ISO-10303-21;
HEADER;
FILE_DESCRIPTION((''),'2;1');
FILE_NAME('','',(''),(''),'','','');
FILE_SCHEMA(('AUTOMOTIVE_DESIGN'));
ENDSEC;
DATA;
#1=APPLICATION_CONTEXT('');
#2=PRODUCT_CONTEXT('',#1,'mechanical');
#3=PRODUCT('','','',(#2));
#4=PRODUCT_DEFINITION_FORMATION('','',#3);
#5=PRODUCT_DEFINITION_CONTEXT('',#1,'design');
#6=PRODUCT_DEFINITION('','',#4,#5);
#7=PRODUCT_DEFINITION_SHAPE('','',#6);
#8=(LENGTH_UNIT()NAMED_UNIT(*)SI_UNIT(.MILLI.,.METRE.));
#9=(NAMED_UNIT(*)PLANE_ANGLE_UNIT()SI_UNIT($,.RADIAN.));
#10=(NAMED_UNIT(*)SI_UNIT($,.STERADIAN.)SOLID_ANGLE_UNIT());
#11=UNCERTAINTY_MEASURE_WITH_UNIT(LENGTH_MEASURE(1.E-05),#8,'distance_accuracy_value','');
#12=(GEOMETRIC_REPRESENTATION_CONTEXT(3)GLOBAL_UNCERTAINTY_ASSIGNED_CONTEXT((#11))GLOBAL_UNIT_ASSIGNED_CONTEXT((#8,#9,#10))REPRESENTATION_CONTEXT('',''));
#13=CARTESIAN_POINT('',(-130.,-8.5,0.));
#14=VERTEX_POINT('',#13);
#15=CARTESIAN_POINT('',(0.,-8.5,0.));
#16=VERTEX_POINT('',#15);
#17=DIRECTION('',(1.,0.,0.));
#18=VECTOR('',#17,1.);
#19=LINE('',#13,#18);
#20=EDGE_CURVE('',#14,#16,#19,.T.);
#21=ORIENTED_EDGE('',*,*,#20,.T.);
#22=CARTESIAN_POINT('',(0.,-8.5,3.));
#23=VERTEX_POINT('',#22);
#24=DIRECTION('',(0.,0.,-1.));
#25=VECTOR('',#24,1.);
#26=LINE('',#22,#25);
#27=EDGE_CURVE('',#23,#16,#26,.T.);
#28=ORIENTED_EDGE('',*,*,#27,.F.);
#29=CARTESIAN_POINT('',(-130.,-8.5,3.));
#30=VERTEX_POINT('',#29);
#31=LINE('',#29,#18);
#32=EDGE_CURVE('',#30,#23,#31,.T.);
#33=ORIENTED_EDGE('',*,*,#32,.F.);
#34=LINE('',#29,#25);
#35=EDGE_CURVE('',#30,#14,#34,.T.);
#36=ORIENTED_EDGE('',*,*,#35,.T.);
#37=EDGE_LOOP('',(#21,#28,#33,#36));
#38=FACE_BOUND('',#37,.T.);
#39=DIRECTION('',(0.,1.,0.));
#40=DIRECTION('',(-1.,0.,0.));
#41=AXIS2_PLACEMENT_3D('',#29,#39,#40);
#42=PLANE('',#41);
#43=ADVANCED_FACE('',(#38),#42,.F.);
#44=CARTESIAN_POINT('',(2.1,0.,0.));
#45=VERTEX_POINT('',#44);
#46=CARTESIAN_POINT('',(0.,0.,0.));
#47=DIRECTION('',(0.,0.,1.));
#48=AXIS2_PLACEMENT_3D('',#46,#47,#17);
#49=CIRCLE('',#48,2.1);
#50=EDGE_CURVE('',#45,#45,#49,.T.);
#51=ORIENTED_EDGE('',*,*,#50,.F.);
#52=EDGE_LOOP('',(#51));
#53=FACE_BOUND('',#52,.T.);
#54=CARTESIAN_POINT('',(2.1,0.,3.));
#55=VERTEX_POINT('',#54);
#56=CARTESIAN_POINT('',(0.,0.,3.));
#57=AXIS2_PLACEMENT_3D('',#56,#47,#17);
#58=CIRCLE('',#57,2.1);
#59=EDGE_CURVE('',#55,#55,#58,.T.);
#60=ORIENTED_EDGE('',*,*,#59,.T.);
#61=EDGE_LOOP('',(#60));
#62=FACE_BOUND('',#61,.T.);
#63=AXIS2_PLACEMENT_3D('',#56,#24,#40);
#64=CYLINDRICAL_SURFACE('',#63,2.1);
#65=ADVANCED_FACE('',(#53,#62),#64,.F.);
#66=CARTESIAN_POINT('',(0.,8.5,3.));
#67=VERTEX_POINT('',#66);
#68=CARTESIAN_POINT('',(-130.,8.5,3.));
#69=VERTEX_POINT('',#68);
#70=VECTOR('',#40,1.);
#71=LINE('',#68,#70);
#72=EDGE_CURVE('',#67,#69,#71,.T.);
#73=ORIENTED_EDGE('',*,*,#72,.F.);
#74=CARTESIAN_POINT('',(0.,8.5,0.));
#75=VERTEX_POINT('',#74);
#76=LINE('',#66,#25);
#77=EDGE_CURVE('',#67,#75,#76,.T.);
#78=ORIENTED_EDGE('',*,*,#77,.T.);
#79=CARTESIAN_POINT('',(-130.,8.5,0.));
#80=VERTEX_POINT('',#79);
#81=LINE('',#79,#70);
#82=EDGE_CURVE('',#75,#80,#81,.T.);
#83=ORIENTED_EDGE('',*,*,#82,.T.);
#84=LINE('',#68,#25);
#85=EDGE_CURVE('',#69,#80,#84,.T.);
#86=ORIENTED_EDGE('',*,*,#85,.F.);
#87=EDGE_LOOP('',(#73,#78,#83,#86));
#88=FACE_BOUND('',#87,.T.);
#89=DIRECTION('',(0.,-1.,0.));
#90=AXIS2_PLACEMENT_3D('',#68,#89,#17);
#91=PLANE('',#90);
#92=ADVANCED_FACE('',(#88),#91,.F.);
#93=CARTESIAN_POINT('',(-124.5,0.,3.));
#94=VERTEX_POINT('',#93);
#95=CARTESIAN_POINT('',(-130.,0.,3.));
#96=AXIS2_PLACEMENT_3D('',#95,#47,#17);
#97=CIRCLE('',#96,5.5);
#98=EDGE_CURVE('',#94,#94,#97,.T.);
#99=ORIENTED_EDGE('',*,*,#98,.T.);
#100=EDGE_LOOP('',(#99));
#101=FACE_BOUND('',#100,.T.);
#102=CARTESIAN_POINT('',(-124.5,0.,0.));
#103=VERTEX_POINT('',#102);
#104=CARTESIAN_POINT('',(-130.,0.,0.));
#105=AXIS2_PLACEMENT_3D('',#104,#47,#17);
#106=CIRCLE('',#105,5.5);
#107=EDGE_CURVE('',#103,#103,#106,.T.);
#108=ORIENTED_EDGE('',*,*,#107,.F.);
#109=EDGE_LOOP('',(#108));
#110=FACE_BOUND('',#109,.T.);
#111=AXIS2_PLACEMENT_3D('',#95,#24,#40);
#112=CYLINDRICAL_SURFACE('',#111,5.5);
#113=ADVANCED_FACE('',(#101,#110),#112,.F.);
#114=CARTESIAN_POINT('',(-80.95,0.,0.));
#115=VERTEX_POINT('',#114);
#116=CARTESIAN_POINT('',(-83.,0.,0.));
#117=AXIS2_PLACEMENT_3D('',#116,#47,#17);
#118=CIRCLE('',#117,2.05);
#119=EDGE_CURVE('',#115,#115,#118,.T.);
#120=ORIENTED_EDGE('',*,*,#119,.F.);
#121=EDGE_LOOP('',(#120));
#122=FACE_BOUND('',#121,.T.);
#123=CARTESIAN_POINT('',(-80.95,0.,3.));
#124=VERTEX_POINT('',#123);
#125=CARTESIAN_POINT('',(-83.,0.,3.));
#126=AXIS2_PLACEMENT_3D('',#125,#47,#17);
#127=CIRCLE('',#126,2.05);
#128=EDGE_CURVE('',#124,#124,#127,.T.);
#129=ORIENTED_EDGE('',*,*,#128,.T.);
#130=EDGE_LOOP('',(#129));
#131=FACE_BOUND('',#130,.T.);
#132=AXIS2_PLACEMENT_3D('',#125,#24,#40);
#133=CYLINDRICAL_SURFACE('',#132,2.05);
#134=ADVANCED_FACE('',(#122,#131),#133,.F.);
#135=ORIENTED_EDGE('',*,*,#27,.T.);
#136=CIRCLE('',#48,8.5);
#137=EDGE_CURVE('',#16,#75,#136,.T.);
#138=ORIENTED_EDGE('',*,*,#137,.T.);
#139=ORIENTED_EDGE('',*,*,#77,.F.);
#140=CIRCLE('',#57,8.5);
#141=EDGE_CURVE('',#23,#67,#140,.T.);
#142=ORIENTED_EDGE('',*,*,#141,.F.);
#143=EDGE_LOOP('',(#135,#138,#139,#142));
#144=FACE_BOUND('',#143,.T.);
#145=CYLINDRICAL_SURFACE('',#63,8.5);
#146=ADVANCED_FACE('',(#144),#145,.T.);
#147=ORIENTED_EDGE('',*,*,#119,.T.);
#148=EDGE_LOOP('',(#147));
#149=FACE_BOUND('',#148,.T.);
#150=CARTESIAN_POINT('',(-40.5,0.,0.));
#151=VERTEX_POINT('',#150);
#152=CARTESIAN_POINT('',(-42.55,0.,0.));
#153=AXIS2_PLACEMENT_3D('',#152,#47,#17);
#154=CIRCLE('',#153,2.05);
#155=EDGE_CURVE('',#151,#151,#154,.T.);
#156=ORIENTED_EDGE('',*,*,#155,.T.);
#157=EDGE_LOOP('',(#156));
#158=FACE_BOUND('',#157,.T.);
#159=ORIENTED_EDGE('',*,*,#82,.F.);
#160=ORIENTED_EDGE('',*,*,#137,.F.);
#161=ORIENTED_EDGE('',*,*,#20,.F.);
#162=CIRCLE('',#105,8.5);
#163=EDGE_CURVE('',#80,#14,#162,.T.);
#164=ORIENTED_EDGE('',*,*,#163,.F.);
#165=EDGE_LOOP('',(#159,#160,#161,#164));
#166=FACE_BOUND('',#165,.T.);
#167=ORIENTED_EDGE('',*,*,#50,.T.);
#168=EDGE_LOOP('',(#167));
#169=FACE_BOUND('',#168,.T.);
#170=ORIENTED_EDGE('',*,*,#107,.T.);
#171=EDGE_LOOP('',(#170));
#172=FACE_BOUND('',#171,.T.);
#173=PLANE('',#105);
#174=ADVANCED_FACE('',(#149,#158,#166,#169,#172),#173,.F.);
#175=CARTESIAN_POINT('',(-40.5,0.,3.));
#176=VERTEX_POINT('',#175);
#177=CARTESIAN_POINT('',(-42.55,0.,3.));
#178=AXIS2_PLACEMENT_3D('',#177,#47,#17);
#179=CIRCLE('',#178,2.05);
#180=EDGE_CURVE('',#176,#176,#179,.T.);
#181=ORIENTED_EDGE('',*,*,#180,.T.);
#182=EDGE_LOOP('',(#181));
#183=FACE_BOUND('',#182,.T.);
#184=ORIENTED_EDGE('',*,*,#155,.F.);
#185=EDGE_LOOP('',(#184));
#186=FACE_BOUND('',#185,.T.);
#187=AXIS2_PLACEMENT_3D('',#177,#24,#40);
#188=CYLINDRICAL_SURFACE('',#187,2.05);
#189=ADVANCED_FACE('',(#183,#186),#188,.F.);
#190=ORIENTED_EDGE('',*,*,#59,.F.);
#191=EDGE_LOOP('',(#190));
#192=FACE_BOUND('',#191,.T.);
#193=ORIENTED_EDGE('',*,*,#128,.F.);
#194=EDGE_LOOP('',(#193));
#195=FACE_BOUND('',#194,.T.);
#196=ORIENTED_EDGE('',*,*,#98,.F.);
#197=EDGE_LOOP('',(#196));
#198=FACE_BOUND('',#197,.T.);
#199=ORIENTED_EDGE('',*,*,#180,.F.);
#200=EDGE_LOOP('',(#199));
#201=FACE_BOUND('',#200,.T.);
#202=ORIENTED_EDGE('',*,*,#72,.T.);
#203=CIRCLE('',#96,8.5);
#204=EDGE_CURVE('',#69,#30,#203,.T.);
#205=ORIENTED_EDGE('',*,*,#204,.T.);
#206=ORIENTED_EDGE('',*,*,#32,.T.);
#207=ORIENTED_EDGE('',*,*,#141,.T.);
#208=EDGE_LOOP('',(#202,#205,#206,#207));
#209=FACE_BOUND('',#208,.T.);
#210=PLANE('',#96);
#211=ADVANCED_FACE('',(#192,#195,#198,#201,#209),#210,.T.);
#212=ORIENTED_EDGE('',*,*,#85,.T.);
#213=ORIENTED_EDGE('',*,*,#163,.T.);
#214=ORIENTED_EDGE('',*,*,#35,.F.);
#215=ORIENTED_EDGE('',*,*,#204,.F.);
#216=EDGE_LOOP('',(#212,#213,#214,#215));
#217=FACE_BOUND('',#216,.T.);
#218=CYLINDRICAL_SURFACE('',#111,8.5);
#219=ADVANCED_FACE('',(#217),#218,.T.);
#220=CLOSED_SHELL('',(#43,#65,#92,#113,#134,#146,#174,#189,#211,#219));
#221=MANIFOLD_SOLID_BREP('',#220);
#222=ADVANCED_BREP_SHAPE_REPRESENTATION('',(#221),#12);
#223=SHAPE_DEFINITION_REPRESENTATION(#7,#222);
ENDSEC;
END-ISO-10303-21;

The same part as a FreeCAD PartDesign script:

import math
import FreeCAD as App
import Part
import Sketcher
from FreeCAD import Vector

doc = App.newDocument("Part")
body = doc.addObject("PartDesign::Body", "Body")

# Sketch on XY plane
sketch1 = body.newObject("Sketcher::SketchObject", "Sketch")
sketch1.AttachmentSupport = (doc.getObject("XY_Plane"), [""])
sketch1.MapMode = "FlatFace"
sketch1.addGeometry(Part.LineSegment(Vector(0, 8.5, 0), Vector(-130, 8.5, 0)), False)
sketch1.addGeometry(Part.ArcOfCircle(Part.Circle(Vector(-130, 0, 0), Vector(0, 0, 1), 8.5), math.radians(90), math.radians(270)), False)
sketch1.addGeometry(Part.LineSegment(Vector(-130, -8.5, 0), Vector(0, -8.5, 0)), False)
sketch1.addGeometry(Part.ArcOfCircle(Part.Circle(Vector(0, 0, 0), Vector(0, 0, 1), 8.5), math.radians(-90), math.radians(90)), False)
sketch1.addGeometry(Part.Circle(Vector(0, 0, 0), Vector(0, 0, 1), 2.1), False)
sketch1.addGeometry(Part.Circle(Vector(-42.5, 0, 0), Vector(0, 0, 1), 2), False)
sketch1.addGeometry(Part.Circle(Vector(-83, 0, 0), Vector(0, 0, 1), 2), False)
sketch1.addGeometry(Part.Circle(Vector(-130, 0, 0), Vector(0, 0, 1), 5.5), False)
sketch1.addConstraint(Sketcher.Constraint("Tangent", 0, 2, 1, 1))
sketch1.addConstraint(Sketcher.Constraint("Tangent", 1, 2, 2, 1))
sketch1.addConstraint(Sketcher.Constraint("Tangent", 2, 2, 3, 1))
sketch1.addConstraint(Sketcher.Constraint("Tangent", 3, 2, 0, 1))
sketch1.addConstraint(Sketcher.Constraint("Horizontal", 0))
sketch1.addConstraint(Sketcher.Constraint("Horizontal", 2))
sketch1.addConstraint(Sketcher.Constraint("Coincident", 3, 3, -1, 1))
sketch1.addConstraint(Sketcher.Constraint("Coincident", 4, 3, -1, 1))
sketch1.addConstraint(Sketcher.Constraint("Coincident", 7, 3, 1, 3))
sketch1.addConstraint(Sketcher.Constraint("Equal", 5, 6))
sketch1.addConstraint(Sketcher.Constraint("PointOnObject", 5, 3, -1))
sketch1.addConstraint(Sketcher.Constraint("PointOnObject", 6, 3, -1))
sketch1.addConstraint(Sketcher.Constraint("Diameter", 7, 11.0))
sketch1.addConstraint(Sketcher.Constraint("Diameter", 4, 4.2))
sketch1.addConstraint(Sketcher.Constraint("Diameter", 5, 4.1))
sketch1.addConstraint(Sketcher.Constraint("Radius", 1, 8.5))
sketch1.addConstraint(Sketcher.Constraint("DistanceX", 0, 2, 0, 1, 130.0))
sketch1.addConstraint(Sketcher.Constraint("DistanceX", 6, 3, -1, 1, 83.0))
sketch1.addConstraint(Sketcher.Constraint("DistanceX", 5, 3, -1, 1, 42.55))
pad1 = body.newObject("PartDesign::Pad", "Pad")
pad1.Profile = sketch1
pad1.Length = 3

doc.recompute()
